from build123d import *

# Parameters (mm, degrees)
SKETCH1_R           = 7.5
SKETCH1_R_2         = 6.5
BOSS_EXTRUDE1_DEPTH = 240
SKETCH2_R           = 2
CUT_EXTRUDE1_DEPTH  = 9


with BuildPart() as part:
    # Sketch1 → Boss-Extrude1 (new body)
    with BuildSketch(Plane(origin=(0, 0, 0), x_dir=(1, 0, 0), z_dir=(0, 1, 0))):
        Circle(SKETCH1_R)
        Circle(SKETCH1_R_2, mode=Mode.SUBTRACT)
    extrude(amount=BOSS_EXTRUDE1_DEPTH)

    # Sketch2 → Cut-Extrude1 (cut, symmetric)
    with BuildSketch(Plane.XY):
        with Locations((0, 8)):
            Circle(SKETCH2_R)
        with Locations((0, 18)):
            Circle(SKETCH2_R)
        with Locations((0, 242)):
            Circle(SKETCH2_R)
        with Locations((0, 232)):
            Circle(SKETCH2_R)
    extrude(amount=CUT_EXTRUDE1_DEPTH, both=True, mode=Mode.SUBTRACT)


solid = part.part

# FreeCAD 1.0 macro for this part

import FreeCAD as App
import Part
import Sketcher
from FreeCAD import Vector

doc = App.newDocument("Part")
params = doc.addObject("Spreadsheet::Sheet", "Params")
for row, (alias, value) in enumerate([
    ("sketch1_diameter", "15 mm"),
    ("sketch1_diameter2", "13 mm"),
    ("pad1_length", "240 mm"),
    ("sketch2_diameter", "4 mm"),
    ("pocket1_length", "18 mm"),
], start=1):
    params.set(f"A{row}", alias)
    params.set(f"B{row}", "=" + value)
    params.setAlias(f"B{row}", alias)

body = doc.addObject("PartDesign::Body", "Body")

# Sketch on XZ plane
sketch1 = doc.addObject("Sketcher::SketchObject", "Sketch")
body.addObject(sketch1)
sketch1.AttachmentSupport = (doc.XZ_Plane, [""])
sketch1.MapMode = "FlatFace"
sketch1.addGeometry(Part.Circle(Vector(0, 0, 0), Vector(0, 0, 1), 7.5), False)
sketch1.addGeometry(Part.Circle(Vector(0, 0, 0), Vector(0, 0, 1), 6.5), False)
sketch1.addConstraint(Sketcher.Constraint("Coincident", 0, 3, -1, 1))
sketch1.addConstraint(Sketcher.Constraint("Coincident", 1, 3, -1, 1))
sketch1.addConstraint(Sketcher.Constraint("Diameter", 0, 15.0))
sketch1.addConstraint(Sketcher.Constraint("Diameter", 1, 13.0))
sketch1.setExpression("Constraints[2]", "Params.sketch1_diameter")
sketch1.setExpression("Constraints[3]", "Params.sketch1_diameter2")
pad1 = doc.addObject("PartDesign::Pad", "Pad")
body.addObject(pad1)
pad1.Profile = sketch1
pad1.setExpression("Length", "Params.pad1_length")
pad1.Reversed = True

# Sketch on XY plane
sketch2 = doc.addObject("Sketcher::SketchObject", "Sketch001")
body.addObject(sketch2)
sketch2.AttachmentSupport = (doc.XY_Plane, [""])
sketch2.MapMode = "FlatFace"
sketch2.addGeometry(Part.Circle(Vector(0, 8, 0), Vector(0, 0, 1), 2), False)
sketch2.addGeometry(Part.Circle(Vector(0, 18, 0), Vector(0, 0, 1), 2), False)
sketch2.addGeometry(Part.Circle(Vector(0, 242, 0), Vector(0, 0, 1), 2), False)
sketch2.addGeometry(Part.Circle(Vector(0, 232, 0), Vector(0, 0, 1), 2), False)
sketch2.addConstraint(Sketcher.Constraint("Equal", 0, 1))
sketch2.addConstraint(Sketcher.Constraint("Equal", 1, 2))
sketch2.addConstraint(Sketcher.Constraint("Equal", 2, 3))
sketch2.addConstraint(Sketcher.Constraint("PointOnObject", 0, 3, -2))
sketch2.addConstraint(Sketcher.Constraint("PointOnObject", 1, 3, -2))
sketch2.addConstraint(Sketcher.Constraint("PointOnObject", 2, 3, -2))
sketch2.addConstraint(Sketcher.Constraint("PointOnObject", 3, 3, -2))
sketch2.addConstraint(Sketcher.Constraint("Diameter", 0, 4.0))
sketch2.addConstraint(Sketcher.Constraint("DistanceY", -1, 1, 0, 3, 8.0))
sketch2.addConstraint(Sketcher.Constraint("DistanceY", -1, 1, 1, 3, 18.0))
sketch2.addConstraint(Sketcher.Constraint("DistanceY", -1, 1, 2, 3, 242.0))
sketch2.addConstraint(Sketcher.Constraint("DistanceY", -1, 1, 3, 3, 232.0))
sketch2.setExpression("Constraints[7]", "Params.sketch2_diameter")
pocket1 = doc.addObject("PartDesign::Pocket", "Pocket")
body.addObject(pocket1)
pocket1.Profile = sketch2
pocket1.setExpression("Length", "Params.pocket1_length")
pocket1.Midplane = True

doc.recompute()
